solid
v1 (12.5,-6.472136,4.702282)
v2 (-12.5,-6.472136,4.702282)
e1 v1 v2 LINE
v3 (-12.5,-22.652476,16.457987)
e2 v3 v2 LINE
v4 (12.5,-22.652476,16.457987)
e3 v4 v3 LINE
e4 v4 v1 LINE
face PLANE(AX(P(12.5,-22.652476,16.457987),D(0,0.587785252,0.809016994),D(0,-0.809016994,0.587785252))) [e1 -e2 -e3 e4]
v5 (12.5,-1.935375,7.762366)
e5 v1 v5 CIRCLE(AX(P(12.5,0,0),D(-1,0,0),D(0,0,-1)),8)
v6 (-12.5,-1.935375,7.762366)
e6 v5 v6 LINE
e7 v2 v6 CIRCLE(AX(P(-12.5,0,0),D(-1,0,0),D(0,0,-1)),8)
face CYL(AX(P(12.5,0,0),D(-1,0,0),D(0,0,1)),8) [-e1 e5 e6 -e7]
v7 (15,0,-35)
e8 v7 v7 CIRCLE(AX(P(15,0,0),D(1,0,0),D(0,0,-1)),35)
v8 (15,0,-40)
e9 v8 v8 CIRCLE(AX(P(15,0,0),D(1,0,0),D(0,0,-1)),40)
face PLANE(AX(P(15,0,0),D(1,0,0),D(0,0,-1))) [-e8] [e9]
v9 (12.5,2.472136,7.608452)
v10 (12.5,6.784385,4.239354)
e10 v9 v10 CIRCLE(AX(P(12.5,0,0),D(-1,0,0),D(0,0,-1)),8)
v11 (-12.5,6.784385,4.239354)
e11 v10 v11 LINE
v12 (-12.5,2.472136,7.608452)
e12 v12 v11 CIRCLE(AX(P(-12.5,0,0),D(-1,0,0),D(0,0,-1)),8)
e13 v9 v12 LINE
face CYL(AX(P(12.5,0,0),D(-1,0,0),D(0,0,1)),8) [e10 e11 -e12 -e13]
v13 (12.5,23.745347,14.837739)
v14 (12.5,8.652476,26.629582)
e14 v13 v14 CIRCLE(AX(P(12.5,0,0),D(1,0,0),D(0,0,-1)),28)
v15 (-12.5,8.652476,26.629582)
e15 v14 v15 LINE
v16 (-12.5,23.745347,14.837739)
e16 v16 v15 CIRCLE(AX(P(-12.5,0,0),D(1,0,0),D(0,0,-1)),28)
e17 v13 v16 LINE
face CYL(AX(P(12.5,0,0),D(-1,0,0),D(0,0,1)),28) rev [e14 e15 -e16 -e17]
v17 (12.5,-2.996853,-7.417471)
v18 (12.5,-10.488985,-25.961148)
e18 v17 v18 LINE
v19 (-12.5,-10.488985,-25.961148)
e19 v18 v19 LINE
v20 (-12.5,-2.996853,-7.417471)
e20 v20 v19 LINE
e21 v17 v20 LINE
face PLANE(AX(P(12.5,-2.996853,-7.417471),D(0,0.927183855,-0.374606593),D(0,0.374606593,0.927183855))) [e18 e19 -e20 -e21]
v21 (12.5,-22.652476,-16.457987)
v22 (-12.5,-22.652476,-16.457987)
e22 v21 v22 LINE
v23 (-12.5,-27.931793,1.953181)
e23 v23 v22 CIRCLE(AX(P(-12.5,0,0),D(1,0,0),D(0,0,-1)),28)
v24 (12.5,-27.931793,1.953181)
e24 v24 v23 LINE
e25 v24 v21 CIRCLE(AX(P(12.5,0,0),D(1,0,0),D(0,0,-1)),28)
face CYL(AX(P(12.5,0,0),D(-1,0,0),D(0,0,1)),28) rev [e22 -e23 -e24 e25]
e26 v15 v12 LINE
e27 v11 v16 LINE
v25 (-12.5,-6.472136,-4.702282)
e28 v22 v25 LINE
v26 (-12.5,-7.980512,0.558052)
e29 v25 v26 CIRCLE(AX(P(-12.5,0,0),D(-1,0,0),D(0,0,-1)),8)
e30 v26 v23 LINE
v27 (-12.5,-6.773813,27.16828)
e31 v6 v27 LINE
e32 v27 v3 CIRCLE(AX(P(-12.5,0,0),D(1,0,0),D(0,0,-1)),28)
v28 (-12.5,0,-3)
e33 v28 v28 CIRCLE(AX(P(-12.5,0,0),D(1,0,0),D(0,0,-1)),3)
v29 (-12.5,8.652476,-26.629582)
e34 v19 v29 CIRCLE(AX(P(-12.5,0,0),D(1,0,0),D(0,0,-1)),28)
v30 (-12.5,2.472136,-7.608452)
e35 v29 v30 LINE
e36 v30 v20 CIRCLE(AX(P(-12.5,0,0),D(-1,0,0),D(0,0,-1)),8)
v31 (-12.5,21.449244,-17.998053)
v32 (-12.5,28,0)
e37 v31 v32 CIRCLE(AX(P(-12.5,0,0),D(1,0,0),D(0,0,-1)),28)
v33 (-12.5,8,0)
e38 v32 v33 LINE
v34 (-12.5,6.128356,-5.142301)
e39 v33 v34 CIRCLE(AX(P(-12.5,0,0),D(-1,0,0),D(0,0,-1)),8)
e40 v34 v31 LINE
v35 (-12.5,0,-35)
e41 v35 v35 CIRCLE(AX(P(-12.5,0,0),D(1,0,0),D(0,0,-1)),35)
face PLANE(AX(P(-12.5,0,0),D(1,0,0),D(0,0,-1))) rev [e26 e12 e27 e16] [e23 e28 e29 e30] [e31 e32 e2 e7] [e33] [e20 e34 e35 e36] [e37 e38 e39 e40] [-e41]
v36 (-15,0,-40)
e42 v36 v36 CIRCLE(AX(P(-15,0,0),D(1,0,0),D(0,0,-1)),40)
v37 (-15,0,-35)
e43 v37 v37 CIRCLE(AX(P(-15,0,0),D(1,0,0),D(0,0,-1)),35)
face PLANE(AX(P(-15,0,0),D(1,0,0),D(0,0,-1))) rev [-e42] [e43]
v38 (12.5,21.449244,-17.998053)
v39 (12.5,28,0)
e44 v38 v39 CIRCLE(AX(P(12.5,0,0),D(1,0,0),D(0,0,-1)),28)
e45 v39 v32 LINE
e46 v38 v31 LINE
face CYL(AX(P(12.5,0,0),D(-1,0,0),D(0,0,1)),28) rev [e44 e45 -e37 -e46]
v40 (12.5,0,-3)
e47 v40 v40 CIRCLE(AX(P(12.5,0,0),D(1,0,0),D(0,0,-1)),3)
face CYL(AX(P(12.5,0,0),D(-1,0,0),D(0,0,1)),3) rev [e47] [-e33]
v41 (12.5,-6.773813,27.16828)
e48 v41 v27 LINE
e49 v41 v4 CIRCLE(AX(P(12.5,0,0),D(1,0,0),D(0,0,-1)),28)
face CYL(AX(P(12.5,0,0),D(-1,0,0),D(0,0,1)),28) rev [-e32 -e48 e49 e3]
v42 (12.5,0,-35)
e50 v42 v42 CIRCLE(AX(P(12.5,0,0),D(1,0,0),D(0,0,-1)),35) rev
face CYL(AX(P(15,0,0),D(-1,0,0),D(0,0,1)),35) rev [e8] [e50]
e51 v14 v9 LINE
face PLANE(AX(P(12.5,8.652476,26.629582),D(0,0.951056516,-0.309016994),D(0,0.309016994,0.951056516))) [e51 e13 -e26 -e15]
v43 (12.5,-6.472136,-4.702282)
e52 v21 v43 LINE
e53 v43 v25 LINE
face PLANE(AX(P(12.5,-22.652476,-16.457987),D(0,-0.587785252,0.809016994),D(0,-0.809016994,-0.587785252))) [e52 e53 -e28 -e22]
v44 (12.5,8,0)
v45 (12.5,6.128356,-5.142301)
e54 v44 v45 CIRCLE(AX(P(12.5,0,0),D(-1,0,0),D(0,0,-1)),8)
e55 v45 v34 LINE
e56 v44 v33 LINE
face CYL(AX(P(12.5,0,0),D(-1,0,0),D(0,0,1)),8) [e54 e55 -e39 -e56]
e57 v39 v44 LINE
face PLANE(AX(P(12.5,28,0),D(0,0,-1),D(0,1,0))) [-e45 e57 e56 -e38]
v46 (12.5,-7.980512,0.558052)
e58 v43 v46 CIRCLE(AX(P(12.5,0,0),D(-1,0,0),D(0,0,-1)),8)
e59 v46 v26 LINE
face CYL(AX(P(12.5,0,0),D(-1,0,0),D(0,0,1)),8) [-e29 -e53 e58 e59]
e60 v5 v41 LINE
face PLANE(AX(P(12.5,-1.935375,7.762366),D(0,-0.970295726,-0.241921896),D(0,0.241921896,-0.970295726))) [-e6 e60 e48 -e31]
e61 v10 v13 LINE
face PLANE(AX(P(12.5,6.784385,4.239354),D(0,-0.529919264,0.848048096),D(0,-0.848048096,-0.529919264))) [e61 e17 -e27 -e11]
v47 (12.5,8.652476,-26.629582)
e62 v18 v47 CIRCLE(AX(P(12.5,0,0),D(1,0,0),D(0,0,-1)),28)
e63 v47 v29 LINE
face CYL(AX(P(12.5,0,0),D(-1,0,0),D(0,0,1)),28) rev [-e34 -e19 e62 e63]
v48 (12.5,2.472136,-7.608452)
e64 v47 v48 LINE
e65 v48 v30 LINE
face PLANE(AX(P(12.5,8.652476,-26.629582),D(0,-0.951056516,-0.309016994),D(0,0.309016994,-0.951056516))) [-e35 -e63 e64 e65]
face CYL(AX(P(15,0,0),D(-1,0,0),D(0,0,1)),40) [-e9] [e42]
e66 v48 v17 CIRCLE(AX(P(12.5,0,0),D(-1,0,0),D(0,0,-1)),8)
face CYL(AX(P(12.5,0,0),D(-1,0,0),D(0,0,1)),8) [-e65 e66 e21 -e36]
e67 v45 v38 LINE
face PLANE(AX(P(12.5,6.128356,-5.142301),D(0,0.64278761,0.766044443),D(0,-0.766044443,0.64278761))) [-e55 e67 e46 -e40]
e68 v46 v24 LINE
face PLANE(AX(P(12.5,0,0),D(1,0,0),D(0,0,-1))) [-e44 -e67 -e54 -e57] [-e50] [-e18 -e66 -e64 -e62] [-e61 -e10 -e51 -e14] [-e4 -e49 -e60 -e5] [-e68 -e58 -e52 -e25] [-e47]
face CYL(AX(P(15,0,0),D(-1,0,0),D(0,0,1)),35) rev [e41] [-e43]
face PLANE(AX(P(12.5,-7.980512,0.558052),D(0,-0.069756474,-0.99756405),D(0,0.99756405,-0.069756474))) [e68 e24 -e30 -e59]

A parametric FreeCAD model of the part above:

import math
import FreeCAD as App
import Part
import Sketcher
from FreeCAD import Vector
Q = App.Units.Quantity

doc = App.newDocument("Part")
params = doc.addObject("Spreadsheet::Sheet", "Params")
for row, (alias, value) in enumerate([
    ("sketch1_diameter", "70 mm"),
    ("sketch1_diameter2", "6 mm"),
    ("sketch1_radius", "28 mm"),
    ("sketch1_radius2", "8 mm"),
    ("pad1_length", "25 mm"),
    ("sketch2_diameter", "80 mm"),
    ("sketch2_diameter2", "70 mm"),
    ("pad2_length", "30 mm"),
], start=1):
    params.set(f"A{row}", alias)
    params.set(f"B{row}", "=" + value)
    params.setAlias(f"B{row}", alias)

body = doc.addObject("PartDesign::Body", "Body")

# Sketch on YZ plane
sketch1 = body.newObject("Sketcher::SketchObject", "Sketch")
sketch1.AttachmentSupport = (doc.getObject("YZ_Plane"), [""])
sketch1.MapMode = "FlatFace"
sketch1.addGeometry(Part.Circle(Vector(0, 0, 0), Vector(0, 0, 1), 35), False)
sketch1.addGeometry(Part.LineSegment(Vector(-6.472136, 4.702282, 0), Vector(-22.652476, 16.457987, 0)), False)
sketch1.addGeometry(Part.ArcOfCircle(Part.Circle(Vector(0, 0, 0), Vector(0, 0, 1), 28), math.radians(104), math.radians(144)), False)
sketch1.addGeometry(Part.LineSegment(Vector(-6.773813, 27.16828, 0), Vector(-1.935375, 7.762366, 0)), False)
sketch1.addGeometry(Part.ArcOfCircle(Part.Circle(Vector(0, 0, 0), Vector(0, 0, 1), 8), math.radians(104), math.radians(144)), False)
sketch1.addGeometry(Part.Circle(Vector(0, 0, 0), Vector(0, 0, 1), 3), False)
sketch1.addGeometry(Part.LineSegment(Vector(-6.472136, -4.702282, 0), Vector(-22.652476, -16.457987, 0)), False)
sketch1.addGeometry(Part.ArcOfCircle(Part.Circle(Vector(0, 0, 0), Vector(0, 0, 1), 28), math.radians(176), math.radians(216)), False)
sketch1.addGeometry(Part.LineSegment(Vector(-27.931793, 1.953181, 0), Vector(-7.980512, 0.558052, 0)), False)
sketch1.addGeometry(Part.ArcOfCircle(Part.Circle(Vector(0, 0, 0), Vector(0, 0, 1), 8), math.radians(176), math.radians(216)), False)
sketch1.addGeometry(Part.LineSegment(Vector(2.472136, -7.608452, 0), Vector(8.652476, -26.629582, 0)), False)
sketch1.addGeometry(Part.ArcOfCircle(Part.Circle(Vector(0, 0, 0), Vector(0, 0, 1), 28), math.radians(-112), math.radians(-72)), False)
sketch1.addGeometry(Part.LineSegment(Vector(-10.488985, -25.961148, 0), Vector(-2.996853, -7.417471, 0)), False)
sketch1.addGeometry(Part.ArcOfCircle(Part.Circle(Vector(0, 0, 0), Vector(0, 0, 1), 8), math.radians(-112), math.radians(-72)), False)
sketch1.addGeometry(Part.LineSegment(Vector(2.472136, 7.608452, 0), Vector(8.652476, 26.629582, 0)), False)
sketch1.addGeometry(Part.ArcOfCircle(Part.Circle(Vector(0, 0, 0), Vector(0, 0, 1), 28), math.radians(32), math.radians(72)), False)
sketch1.addGeometry(Part.LineSegment(Vector(23.745347, 14.837739, 0), Vector(6.784385, 4.239354, 0)), False)
sketch1.addGeometry(Part.ArcOfCircle(Part.Circle(Vector(0, 0, 0), Vector(0, 0, 1), 8), math.radians(32), math.radians(72)), False)
sketch1.addGeometry(Part.LineSegment(Vector(8, 0, 0), Vector(28, 0, 0)), False)
sketch1.addGeometry(Part.ArcOfCircle(Part.Circle(Vector(0, 0, 0), Vector(0, 0, 1), 28), math.radians(-40), math.radians(0)), False)
sketch1.addGeometry(Part.LineSegment(Vector(21.449244, -17.998053, 0), Vector(6.128356, -5.142301, 0)), False)
sketch1.addGeometry(Part.ArcOfCircle(Part.Circle(Vector(0, 0, 0), Vector(0, 0, 1), 8), math.radians(-40), math.radians(0)), False)
sketch1.addConstraint(Sketcher.Constraint("Coincident", 1, 2, 2, 2))
sketch1.addConstraint(Sketcher.Constraint("Coincident", 2, 1, 3, 1))
sketch1.addConstraint(Sketcher.Constraint("Coincident", 3, 2, 4, 1))
sketch1.addConstraint(Sketcher.Constraint("Coincident", 4, 2, 1, 1))
sketch1.addConstraint(Sketcher.Constraint("Coincident", 6, 2, 7, 2))
sketch1.addConstraint(Sketcher.Constraint("Coincident", 7, 1, 8, 1))
sketch1.addConstraint(Sketcher.Constraint("Coincident", 8, 2, 9, 1))
sketch1.addConstraint(Sketcher.Constraint("Coincident", 9, 2, 6, 1))
sketch1.addConstraint(Sketcher.Constraint("Coincident", 10, 2, 11, 2))
sketch1.addConstraint(Sketcher.Constraint("Coincident", 11, 1, 12, 1))
sketch1.addConstraint(Sketcher.Constraint("Coincident", 12, 2, 13, 1))
sketch1.addConstraint(Sketcher.Constraint("Coincident", 13, 2, 10, 1))
sketch1.addConstraint(Sketcher.Constraint("Coincident", 14, 2, 15, 2))
sketch1.addConstraint(Sketcher.Constraint("Coincident", 15, 1, 16, 1))
sketch1.addConstraint(Sketcher.Constraint("Coincident", 16, 2, 17, 1))
sketch1.addConstraint(Sketcher.Constraint("Coincident", 17, 2, 14, 1))
sketch1.addConstraint(Sketcher.Constraint("Coincident", 18, 2, 19, 2))
sketch1.addConstraint(Sketcher.Constraint("Coincident", 19, 1, 20, 1))
sketch1.addConstraint(Sketcher.Constraint("Coincident", 20, 2, 21, 1))
sketch1.addConstraint(Sketcher.Constraint("Coincident", 21, 2, 18, 1))
sketch1.addConstraint(Sketcher.Constraint("Horizontal", 18))
sketch1.addConstraint(Sketcher.Constraint("Coincident", 0, 3, -1, 1))
sketch1.addConstraint(Sketcher.Constraint("Coincident", 2, 3, -1, 1))
sketch1.addConstraint(Sketcher.Constraint("Coincident", 4, 3, -1, 1))
sketch1.addConstraint(Sketcher.Constraint("Coincident", 5, 3, -1, 1))
sketch1.addConstraint(Sketcher.Constraint("Coincident", 7, 3, -1, 1))
sketch1.addConstraint(Sketcher.Constraint("Coincident", 9, 3, -1, 1))
sketch1.addConstraint(Sketcher.Constraint("Coincident", 11, 3, -1, 1))
sketch1.addConstraint(Sketcher.Constraint("Coincident", 13, 3, -1, 1))
sketch1.addConstraint(Sketcher.Constraint("Coincident", 15, 3, -1, 1))
sketch1.addConstraint(Sketcher.Constraint("Coincident", 17, 3, -1, 1))
sketch1.addConstraint(Sketcher.Constraint("Coincident", 19, 3, -1, 1))
sketch1.addConstraint(Sketcher.Constraint("Coincident", 21, 3, -1, 1))
sketch1.addConstraint(Sketcher.Constraint("Equal", 2, 7))
sketch1.addConstraint(Sketcher.Constraint("Equal", 4, 9))
sketch1.addConstraint(Sketcher.Constraint("Equal", 7, 11))
sketch1.addConstraint(Sketcher.Constraint("Equal", 9, 13))
sketch1.addConstraint(Sketcher.Constraint("Equal", 11, 15))
sketch1.addConstraint(Sketcher.Constraint("Equal", 13, 17))
sketch1.addConstraint(Sketcher.Constraint("Equal", 15, 19))
sketch1.addConstraint(Sketcher.Constraint("Equal", 17, 21))
sketch1.addConstraint(Sketcher.Constraint("PointOnObject", 18, 2, -1))
sketch1.addConstraint(Sketcher.Constraint("Vertical", 1, 2, 6, 2))
sketch1.addConstraint(Sketcher.Constraint("Vertical", 4, 2, 9, 2))
sketch1.addConstraint(Sketcher.Constraint("Vertical", 10, 2, 14, 2))
sketch1.addConstraint(Sketcher.Constraint("Vertical", 13, 2, 17, 2))
sketch1.addConstraint(Sketcher.Constraint("Diameter", 0, 70.0))
sketch1.addConstraint(Sketcher.Constraint("Diameter", 5, 6.0))
sketch1.addConstraint(Sketcher.Constraint("Radius", 2, 28.0))
sketch1.addConstraint(Sketcher.Constraint("Radius", 4, 8.0))
sketch1.addConstraint(Sketcher.Constraint("Angle", 1, Q("144 deg")))
sketch1.addConstraint(Sketcher.Constraint("Angle", 3, Q("-76 deg")))
sketch1.addConstraint(Sketcher.Constraint("Angle", 8, Q("-4 deg")))
sketch1.addConstraint(Sketcher.Constraint("Angle", 10, Q("-72 deg")))
sketch1.addConstraint(Sketcher.Constraint("Angle", 12, Q("68 deg")))
sketch1.addConstraint(Sketcher.Constraint("Angle", 16, Q("-148 deg")))
sketch1.addConstraint(Sketcher.Constraint("Angle", 20, Q("140 deg")))
sketch1.addConstraint(Sketcher.Constraint("DistanceY", 20, 2, -1, 1, 5.142301))
sketch1.addConstraint(Sketcher.Constraint("DistanceY", 7, 1, 4, 2, 2.749101))
sketch1.addConstraint(Sketcher.Constraint("DistanceY", 10, 2, 9, 2, 21.9273))
sketch1.addConstraint(Sketcher.Constraint("DistanceY", 11, 1, 8, 2, 26.5192))
sketch1.addConstraint(Sketcher.Constraint("DistanceY", 16, 2, 17, 2, 3.369098))
sketch1.addConstraint(Sketcher.Constraint("DistanceY", 19, 1, 13, 2, 10.389601))
sketch1.addConstraint(Sketcher.Constraint("DistanceY", -1, 1, 2, 1, 27.16828))
sketch1.setExpression("Constraints[46]", "Params.sketch1_diameter")
sketch1.setExpression("Constraints[47]", "Params.sketch1_diameter2")
sketch1.setExpression("Constraints[48]", "Params.sketch1_radius")
sketch1.setExpression("Constraints[49]", "Params.sketch1_radius2")
pad1 = body.newObject("PartDesign::Pad", "Pad")
pad1.Profile = sketch1
pad1.setExpression("Length", "Params.pad1_length")
pad1.Midplane = True

# Sketch on YZ plane
sketch2 = body.newObject("Sketcher::SketchObject", "Sketch001")
sketch2.AttachmentSupport = (doc.getObject("YZ_Plane"), [""])
sketch2.MapMode = "FlatFace"
sketch2.addGeometry(Part.Circle(Vector(0, 0, 0), Vector(0, 0, 1), 40), False)
sketch2.addGeometry(Part.Circle(Vector(0, 0, 0), Vector(0, 0, 1), 35), False)
sketch2.addConstraint(Sketcher.Constraint("Coincident", 0, 3, -1, 1))
sketch2.addConstraint(Sketcher.Constraint("Coincident", 1, 3, -1, 1))
sketch2.addConstraint(Sketcher.Constraint("Diameter", 0, 80.0))
sketch2.addConstraint(Sketcher.Constraint("Diameter", 1, 70.0))
sketch2.setExpression("Constraints[2]", "Params.sketch2_diameter")
sketch2.setExpression("Constraints[3]", "Params.sketch2_diameter2")
pad2 = body.newObject("PartDesign::Pad", "Pad001")
pad2.Profile = sketch2
pad2.setExpression("Length", "Params.pad2_length")
pad2.Midplane = True

doc.recompute()
